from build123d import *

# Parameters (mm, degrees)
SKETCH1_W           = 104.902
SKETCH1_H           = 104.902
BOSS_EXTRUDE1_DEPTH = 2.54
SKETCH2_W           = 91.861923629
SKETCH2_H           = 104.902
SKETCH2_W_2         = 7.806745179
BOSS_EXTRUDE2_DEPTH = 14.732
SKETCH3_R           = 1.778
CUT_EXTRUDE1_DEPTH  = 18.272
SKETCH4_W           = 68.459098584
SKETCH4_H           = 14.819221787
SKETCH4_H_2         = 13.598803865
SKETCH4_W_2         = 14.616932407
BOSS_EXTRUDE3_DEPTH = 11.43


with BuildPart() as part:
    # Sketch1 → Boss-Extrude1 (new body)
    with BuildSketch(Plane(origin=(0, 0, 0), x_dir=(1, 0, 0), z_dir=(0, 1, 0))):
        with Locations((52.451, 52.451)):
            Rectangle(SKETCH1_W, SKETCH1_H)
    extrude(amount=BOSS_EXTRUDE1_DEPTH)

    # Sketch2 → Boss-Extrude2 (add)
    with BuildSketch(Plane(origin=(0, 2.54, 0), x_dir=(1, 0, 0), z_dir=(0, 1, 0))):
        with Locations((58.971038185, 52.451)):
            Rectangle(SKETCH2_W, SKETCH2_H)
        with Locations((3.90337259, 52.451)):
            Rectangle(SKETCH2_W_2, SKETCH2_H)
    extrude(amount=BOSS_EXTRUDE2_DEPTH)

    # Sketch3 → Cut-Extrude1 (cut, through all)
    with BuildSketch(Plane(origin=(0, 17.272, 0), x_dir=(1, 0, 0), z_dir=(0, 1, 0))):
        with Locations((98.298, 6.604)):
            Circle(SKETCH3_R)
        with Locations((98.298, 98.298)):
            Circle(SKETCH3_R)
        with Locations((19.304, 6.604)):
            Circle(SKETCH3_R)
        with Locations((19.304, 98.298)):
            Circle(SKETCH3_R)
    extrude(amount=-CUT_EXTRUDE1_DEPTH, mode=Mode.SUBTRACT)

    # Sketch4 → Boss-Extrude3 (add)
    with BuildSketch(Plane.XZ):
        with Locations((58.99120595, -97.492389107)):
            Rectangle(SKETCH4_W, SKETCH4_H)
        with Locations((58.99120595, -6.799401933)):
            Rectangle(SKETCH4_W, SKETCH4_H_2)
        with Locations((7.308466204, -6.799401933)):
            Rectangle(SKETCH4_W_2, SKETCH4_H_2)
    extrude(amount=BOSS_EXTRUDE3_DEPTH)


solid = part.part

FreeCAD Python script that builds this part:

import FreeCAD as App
import Part
import Sketcher
Q = App.Units.Quantity

doc = App.newDocument("Part")
body = doc.addObject("PartDesign::Body", "Body")

# Sketch on XZ plane
sketch1 = body.newObject("Sketcher::SketchObject", "Sketch")
sketch1.AttachmentSupport = (doc.getObject("XZ_Plane"), [""])
sketch1.MapMode = "FlatFace"
sketch1.addGeometry([
    Part.LineSegment(App.Vector(0, -105, 0), App.Vector(0, 0, 0)),
    Part.LineSegment(App.Vector(0, 0, 0), App.Vector(105, 0, 0)),
    Part.LineSegment(App.Vector(105, 0, 0), App.Vector(105, -105, 0)),
    Part.LineSegment(App.Vector(105, -105, 0), App.Vector(0, -105, 0)),
], False)
sketch1.addConstraint([
    Sketcher.Constraint("Coincident", 0, 2, 1, 1),
    Sketcher.Constraint("Coincident", 1, 2, 2, 1),
    Sketcher.Constraint("Coincident", 2, 2, 3, 1),
    Sketcher.Constraint("Coincident", 3, 2, 0, 1),
    Sketcher.Constraint("Vertical", 0),
    Sketcher.Constraint("Horizontal", 1),
    Sketcher.Constraint("Vertical", 2),
    Sketcher.Constraint("Horizontal", 3),
    Sketcher.Constraint("Coincident", 0, 2, -1, 1),
    Sketcher.Constraint("Equal", 3, 0),
    Sketcher.Constraint("DistanceX", 1, 1, 1, 2, Q("4.13 in")),
])
pad1 = body.newObject("PartDesign::Pad", "Pad")
pad1.Profile = sketch1
pad1.Length = Q("0.1 in")
pad1.Reversed = True

# Sketch on XZ plane
sketch2 = body.newObject("Sketcher::SketchObject", "Sketch001")
sketch2.AttachmentSupport = (doc.getObject("XZ_Plane"), [""])
sketch2.MapMode = "FlatFace"
sketch2.AttachmentOffset = App.Placement(App.Vector(0, 0, -0.1 * 25.4), App.Rotation())
sketch2.addGeometry([
    Part.LineSegment(App.Vector(13, -105, 0), App.Vector(13, 0, 0)),  # 0
    Part.LineSegment(App.Vector(13, 0, 0), App.Vector(105, 0, 0)),  # 1
    Part.LineSegment(App.Vector(105, 0, 0), App.Vector(105, -105, 0)),  # 2
    Part.LineSegment(App.Vector(105, -105, 0), App.Vector(13, -105, 0)),  # 3
    Part.LineSegment(App.Vector(0, -105, 0), App.Vector(0, 0, 0)),  # 4
    Part.LineSegment(App.Vector(0, 0, 0), App.Vector(8, 0, 0)),  # 5
    Part.LineSegment(App.Vector(8, 0, 0), App.Vector(8, -105, 0)),  # 6
    Part.LineSegment(App.Vector(8, -105, 0), App.Vector(0, -105, 0)),  # 7
], False)
sketch2.addConstraint([
    Sketcher.Constraint("Coincident", 0, 2, 1, 1),
    Sketcher.Constraint("Coincident", 1, 2, 2, 1),
    Sketcher.Constraint("Coincident", 2, 2, 3, 1),
    Sketcher.Constraint("Coincident", 3, 2, 0, 1),
    Sketcher.Constraint("Coincident", 4, 2, 5, 1),
    Sketcher.Constraint("Coincident", 5, 2, 6, 1),
    Sketcher.Constraint("Coincident", 6, 2, 7, 1),
    Sketcher.Constraint("Coincident", 7, 2, 4, 1),
    Sketcher.Constraint("Vertical", 0),
    Sketcher.Constraint("Horizontal", 1),
    Sketcher.Constraint("Vertical", 2),
    Sketcher.Constraint("Horizontal", 3),
    Sketcher.Constraint("Vertical", 4),
    Sketcher.Constraint("Horizontal", 5),
    Sketcher.Constraint("Vertical", 6),
    Sketcher.Constraint("Horizontal", 7),
    Sketcher.Constraint("Coincident", 4, 2, -1, 1),
    Sketcher.Constraint("PointOnObject", 0, 2, -1),
    Sketcher.Constraint("Horizontal", 3, 2, 6, 2),
    Sketcher.Constraint("DistanceY", 0, 1, 0, 2, Q("4.13 in")),
    Sketcher.Constraint("DistanceX", -1, 1, 1, 2, Q("4.13 in")),
    Sketcher.Constraint("DistanceX", 1, 1, 1, 2, 91.861924),
    Sketcher.Constraint("DistanceX", 5, 1, 5, 2, 7.806745),
])
pad2 = body.newObject("PartDesign::Pad", "Pad001")
pad2.Profile = sketch2
pad2.Length = Q("0.58 in")
pad2.Reversed = True

# Sketch on XZ plane
sketch3 = body.newObject("Sketcher::SketchObject", "Sketch002")
sketch3.AttachmentSupport = (doc.getObject("XZ_Plane"), [""])
sketch3.MapMode = "FlatFace"
sketch3.AttachmentOffset = App.Placement(App.Vector(0, 0, -0.68 * 25.4), App.Rotation())
sketch3.addGeometry([
    Part.Circle(App.Vector(98.3, -6.6, 0), App.Vector(0, 0, 1), 1.8),
    Part.Circle(App.Vector(98.3, -98.3, 0), App.Vector(0, 0, 1), 1.8),
    Part.Circle(App.Vector(19.3, -6.6, 0), App.Vector(0, 0, 1), 1.8),
    Part.Circle(App.Vector(19.3, -98.3, 0), App.Vector(0, 0, 1), 1.8),
], False)
sketch3.addConstraint([
    Sketcher.Constraint("Equal", 0, 1),
    Sketcher.Constraint("Equal", 1, 2),
    Sketcher.Constraint("Equal", 2, 3),
    Sketcher.Constraint("Horizontal", 0, 3, 2, 3),
    Sketcher.Constraint("Horizontal", 1, 3, 3, 3),
    Sketcher.Constraint("Vertical", 0, 3, 1, 3),
    Sketcher.Constraint("Vertical", 2, 3, 3, 3),
    Sketcher.Constraint("Diameter", 0, Q("0.14 in")),
    Sketcher.Constraint("DistanceX", -1, 1, 0, 3, Q("3.87 in")),
    Sketcher.Constraint("DistanceY", 0, 3, -1, 1, Q("0.26 in")),
    Sketcher.Constraint("DistanceY", 1, 3, -1, 1, Q("3.87 in")),
    Sketcher.Constraint("DistanceX", -1, 1, 2, 3, Q("0.76 in")),
])
pocket1 = body.newObject("PartDesign::Pocket", "Pocket")
pocket1.Profile = sketch3
pocket1.Type = "ThroughAll"
pocket1.Reversed = True

# Sketch on XZ plane
sketch4 = body.newObject("Sketcher::SketchObject", "Sketch003")
sketch4.AttachmentSupport = (doc.getObject("XZ_Plane"), [""])
sketch4.MapMode = "FlatFace"
sketch4.addGeometry([
    Part.LineSegment(App.Vector(25, -90, 0), App.Vector(25, -105, 0)),  # 0
    Part.LineSegment(App.Vector(25, -105, 0), App.Vector(93, -105, 0)),  # 1
    Part.LineSegment(App.Vector(93, -105, 0), App.Vector(93, -90, 0)),  # 2
    Part.LineSegment(App.Vector(93, -90, 0), App.Vector(25, -90, 0)),  # 3
    Part.LineSegment(App.Vector(25, 0, 0), App.Vector(25, -14, 0)),  # 4
    Part.LineSegment(App.Vector(25, -14, 0), App.Vector(93, -14, 0)),  # 5
    Part.LineSegment(App.Vector(93, -14, 0), App.Vector(93, 0, 0)),  # 6
    Part.LineSegment(App.Vector(93, 0, 0), App.Vector(25, 0, 0)),  # 7
    Part.LineSegment(App.Vector(0, 0, 0), App.Vector(0, -14, 0)),  # 8
    Part.LineSegment(App.Vector(0, -14, 0), App.Vector(15, -14, 0)),  # 9
    Part.LineSegment(App.Vector(15, -14, 0), App.Vector(15, 0, 0)),  # 10
    Part.LineSegment(App.Vector(15, 0, 0), App.Vector(0, 0, 0)),  # 11
], False)
sketch4.addConstraint([
    Sketcher.Constraint("Coincident", 0, 2, 1, 1),
    Sketcher.Constraint("Coincident", 1, 2, 2, 1),
    Sketcher.Constraint("Coincident", 2, 2, 3, 1),
    Sketcher.Constraint("Coincident", 3, 2, 0, 1),
    Sketcher.Constraint("Coincident", 4, 2, 5, 1),
    Sketcher.Constraint("Coincident", 5, 2, 6, 1),
    Sketcher.Constraint("Coincident", 6, 2, 7, 1),
    Sketcher.Constraint("Coincident", 7, 2, 4, 1),
    Sketcher.Constraint("Coincident", 8, 2, 9, 1),
    Sketcher.Constraint("Coincident", 9, 2, 10, 1),
    Sketcher.Constraint("Coincident", 10, 2, 11, 1),
    Sketcher.Constraint("Coincident", 11, 2, 8, 1),
    Sketcher.Constraint("Vertical", 0),
    Sketcher.Constraint("Horizontal", 1),
    Sketcher.Constraint("Vertical", 2),
    Sketcher.Constraint("Horizontal", 3),
    Sketcher.Constraint("Vertical", 4),
    Sketcher.Constraint("Horizontal", 5),
    Sketcher.Constraint("Vertical", 6),
    Sketcher.Constraint("Horizontal", 7),
    Sketcher.Constraint("Vertical", 8),
    Sketcher.Constraint("Horizontal", 9),
    Sketcher.Constraint("Vertical", 10),
    Sketcher.Constraint("Horizontal", 11),
    Sketcher.Constraint("Coincident", 11, 2, -1, 1),
    Sketcher.Constraint("PointOnObject", 6, 2, -1),
    Sketcher.Constraint("Horizontal", 5, 2, 8, 2),
    Sketcher.Constraint("Vertical", 3, 2, 4, 2),
    Sketcher.Constraint("Vertical", 2, 2, 5, 2),
    Sketcher.Constraint("DistanceY", 0, 2, -1, 1, Q("4.13 in")),
    Sketcher.Constraint("DistanceX", 1, 1, 1, 2, 68.459099),
    Sketcher.Constraint("DistanceY", 0, 2, 0, 1, 14.819222),
    Sketcher.Constraint("DistanceX", 9, 1, 9, 2, 14.616932),
    Sketcher.Constraint("DistanceY", 4, 2, 4, 1, 13.598804),
    Sketcher.Constraint("DistanceX", -1, 1, 0, 2, 24.761657),
])
pad3 = body.newObject("PartDesign::Pad", "Pad002")
pad3.Profile = sketch4
pad3.Length = Q("0.45 in")

doc.recompute()
